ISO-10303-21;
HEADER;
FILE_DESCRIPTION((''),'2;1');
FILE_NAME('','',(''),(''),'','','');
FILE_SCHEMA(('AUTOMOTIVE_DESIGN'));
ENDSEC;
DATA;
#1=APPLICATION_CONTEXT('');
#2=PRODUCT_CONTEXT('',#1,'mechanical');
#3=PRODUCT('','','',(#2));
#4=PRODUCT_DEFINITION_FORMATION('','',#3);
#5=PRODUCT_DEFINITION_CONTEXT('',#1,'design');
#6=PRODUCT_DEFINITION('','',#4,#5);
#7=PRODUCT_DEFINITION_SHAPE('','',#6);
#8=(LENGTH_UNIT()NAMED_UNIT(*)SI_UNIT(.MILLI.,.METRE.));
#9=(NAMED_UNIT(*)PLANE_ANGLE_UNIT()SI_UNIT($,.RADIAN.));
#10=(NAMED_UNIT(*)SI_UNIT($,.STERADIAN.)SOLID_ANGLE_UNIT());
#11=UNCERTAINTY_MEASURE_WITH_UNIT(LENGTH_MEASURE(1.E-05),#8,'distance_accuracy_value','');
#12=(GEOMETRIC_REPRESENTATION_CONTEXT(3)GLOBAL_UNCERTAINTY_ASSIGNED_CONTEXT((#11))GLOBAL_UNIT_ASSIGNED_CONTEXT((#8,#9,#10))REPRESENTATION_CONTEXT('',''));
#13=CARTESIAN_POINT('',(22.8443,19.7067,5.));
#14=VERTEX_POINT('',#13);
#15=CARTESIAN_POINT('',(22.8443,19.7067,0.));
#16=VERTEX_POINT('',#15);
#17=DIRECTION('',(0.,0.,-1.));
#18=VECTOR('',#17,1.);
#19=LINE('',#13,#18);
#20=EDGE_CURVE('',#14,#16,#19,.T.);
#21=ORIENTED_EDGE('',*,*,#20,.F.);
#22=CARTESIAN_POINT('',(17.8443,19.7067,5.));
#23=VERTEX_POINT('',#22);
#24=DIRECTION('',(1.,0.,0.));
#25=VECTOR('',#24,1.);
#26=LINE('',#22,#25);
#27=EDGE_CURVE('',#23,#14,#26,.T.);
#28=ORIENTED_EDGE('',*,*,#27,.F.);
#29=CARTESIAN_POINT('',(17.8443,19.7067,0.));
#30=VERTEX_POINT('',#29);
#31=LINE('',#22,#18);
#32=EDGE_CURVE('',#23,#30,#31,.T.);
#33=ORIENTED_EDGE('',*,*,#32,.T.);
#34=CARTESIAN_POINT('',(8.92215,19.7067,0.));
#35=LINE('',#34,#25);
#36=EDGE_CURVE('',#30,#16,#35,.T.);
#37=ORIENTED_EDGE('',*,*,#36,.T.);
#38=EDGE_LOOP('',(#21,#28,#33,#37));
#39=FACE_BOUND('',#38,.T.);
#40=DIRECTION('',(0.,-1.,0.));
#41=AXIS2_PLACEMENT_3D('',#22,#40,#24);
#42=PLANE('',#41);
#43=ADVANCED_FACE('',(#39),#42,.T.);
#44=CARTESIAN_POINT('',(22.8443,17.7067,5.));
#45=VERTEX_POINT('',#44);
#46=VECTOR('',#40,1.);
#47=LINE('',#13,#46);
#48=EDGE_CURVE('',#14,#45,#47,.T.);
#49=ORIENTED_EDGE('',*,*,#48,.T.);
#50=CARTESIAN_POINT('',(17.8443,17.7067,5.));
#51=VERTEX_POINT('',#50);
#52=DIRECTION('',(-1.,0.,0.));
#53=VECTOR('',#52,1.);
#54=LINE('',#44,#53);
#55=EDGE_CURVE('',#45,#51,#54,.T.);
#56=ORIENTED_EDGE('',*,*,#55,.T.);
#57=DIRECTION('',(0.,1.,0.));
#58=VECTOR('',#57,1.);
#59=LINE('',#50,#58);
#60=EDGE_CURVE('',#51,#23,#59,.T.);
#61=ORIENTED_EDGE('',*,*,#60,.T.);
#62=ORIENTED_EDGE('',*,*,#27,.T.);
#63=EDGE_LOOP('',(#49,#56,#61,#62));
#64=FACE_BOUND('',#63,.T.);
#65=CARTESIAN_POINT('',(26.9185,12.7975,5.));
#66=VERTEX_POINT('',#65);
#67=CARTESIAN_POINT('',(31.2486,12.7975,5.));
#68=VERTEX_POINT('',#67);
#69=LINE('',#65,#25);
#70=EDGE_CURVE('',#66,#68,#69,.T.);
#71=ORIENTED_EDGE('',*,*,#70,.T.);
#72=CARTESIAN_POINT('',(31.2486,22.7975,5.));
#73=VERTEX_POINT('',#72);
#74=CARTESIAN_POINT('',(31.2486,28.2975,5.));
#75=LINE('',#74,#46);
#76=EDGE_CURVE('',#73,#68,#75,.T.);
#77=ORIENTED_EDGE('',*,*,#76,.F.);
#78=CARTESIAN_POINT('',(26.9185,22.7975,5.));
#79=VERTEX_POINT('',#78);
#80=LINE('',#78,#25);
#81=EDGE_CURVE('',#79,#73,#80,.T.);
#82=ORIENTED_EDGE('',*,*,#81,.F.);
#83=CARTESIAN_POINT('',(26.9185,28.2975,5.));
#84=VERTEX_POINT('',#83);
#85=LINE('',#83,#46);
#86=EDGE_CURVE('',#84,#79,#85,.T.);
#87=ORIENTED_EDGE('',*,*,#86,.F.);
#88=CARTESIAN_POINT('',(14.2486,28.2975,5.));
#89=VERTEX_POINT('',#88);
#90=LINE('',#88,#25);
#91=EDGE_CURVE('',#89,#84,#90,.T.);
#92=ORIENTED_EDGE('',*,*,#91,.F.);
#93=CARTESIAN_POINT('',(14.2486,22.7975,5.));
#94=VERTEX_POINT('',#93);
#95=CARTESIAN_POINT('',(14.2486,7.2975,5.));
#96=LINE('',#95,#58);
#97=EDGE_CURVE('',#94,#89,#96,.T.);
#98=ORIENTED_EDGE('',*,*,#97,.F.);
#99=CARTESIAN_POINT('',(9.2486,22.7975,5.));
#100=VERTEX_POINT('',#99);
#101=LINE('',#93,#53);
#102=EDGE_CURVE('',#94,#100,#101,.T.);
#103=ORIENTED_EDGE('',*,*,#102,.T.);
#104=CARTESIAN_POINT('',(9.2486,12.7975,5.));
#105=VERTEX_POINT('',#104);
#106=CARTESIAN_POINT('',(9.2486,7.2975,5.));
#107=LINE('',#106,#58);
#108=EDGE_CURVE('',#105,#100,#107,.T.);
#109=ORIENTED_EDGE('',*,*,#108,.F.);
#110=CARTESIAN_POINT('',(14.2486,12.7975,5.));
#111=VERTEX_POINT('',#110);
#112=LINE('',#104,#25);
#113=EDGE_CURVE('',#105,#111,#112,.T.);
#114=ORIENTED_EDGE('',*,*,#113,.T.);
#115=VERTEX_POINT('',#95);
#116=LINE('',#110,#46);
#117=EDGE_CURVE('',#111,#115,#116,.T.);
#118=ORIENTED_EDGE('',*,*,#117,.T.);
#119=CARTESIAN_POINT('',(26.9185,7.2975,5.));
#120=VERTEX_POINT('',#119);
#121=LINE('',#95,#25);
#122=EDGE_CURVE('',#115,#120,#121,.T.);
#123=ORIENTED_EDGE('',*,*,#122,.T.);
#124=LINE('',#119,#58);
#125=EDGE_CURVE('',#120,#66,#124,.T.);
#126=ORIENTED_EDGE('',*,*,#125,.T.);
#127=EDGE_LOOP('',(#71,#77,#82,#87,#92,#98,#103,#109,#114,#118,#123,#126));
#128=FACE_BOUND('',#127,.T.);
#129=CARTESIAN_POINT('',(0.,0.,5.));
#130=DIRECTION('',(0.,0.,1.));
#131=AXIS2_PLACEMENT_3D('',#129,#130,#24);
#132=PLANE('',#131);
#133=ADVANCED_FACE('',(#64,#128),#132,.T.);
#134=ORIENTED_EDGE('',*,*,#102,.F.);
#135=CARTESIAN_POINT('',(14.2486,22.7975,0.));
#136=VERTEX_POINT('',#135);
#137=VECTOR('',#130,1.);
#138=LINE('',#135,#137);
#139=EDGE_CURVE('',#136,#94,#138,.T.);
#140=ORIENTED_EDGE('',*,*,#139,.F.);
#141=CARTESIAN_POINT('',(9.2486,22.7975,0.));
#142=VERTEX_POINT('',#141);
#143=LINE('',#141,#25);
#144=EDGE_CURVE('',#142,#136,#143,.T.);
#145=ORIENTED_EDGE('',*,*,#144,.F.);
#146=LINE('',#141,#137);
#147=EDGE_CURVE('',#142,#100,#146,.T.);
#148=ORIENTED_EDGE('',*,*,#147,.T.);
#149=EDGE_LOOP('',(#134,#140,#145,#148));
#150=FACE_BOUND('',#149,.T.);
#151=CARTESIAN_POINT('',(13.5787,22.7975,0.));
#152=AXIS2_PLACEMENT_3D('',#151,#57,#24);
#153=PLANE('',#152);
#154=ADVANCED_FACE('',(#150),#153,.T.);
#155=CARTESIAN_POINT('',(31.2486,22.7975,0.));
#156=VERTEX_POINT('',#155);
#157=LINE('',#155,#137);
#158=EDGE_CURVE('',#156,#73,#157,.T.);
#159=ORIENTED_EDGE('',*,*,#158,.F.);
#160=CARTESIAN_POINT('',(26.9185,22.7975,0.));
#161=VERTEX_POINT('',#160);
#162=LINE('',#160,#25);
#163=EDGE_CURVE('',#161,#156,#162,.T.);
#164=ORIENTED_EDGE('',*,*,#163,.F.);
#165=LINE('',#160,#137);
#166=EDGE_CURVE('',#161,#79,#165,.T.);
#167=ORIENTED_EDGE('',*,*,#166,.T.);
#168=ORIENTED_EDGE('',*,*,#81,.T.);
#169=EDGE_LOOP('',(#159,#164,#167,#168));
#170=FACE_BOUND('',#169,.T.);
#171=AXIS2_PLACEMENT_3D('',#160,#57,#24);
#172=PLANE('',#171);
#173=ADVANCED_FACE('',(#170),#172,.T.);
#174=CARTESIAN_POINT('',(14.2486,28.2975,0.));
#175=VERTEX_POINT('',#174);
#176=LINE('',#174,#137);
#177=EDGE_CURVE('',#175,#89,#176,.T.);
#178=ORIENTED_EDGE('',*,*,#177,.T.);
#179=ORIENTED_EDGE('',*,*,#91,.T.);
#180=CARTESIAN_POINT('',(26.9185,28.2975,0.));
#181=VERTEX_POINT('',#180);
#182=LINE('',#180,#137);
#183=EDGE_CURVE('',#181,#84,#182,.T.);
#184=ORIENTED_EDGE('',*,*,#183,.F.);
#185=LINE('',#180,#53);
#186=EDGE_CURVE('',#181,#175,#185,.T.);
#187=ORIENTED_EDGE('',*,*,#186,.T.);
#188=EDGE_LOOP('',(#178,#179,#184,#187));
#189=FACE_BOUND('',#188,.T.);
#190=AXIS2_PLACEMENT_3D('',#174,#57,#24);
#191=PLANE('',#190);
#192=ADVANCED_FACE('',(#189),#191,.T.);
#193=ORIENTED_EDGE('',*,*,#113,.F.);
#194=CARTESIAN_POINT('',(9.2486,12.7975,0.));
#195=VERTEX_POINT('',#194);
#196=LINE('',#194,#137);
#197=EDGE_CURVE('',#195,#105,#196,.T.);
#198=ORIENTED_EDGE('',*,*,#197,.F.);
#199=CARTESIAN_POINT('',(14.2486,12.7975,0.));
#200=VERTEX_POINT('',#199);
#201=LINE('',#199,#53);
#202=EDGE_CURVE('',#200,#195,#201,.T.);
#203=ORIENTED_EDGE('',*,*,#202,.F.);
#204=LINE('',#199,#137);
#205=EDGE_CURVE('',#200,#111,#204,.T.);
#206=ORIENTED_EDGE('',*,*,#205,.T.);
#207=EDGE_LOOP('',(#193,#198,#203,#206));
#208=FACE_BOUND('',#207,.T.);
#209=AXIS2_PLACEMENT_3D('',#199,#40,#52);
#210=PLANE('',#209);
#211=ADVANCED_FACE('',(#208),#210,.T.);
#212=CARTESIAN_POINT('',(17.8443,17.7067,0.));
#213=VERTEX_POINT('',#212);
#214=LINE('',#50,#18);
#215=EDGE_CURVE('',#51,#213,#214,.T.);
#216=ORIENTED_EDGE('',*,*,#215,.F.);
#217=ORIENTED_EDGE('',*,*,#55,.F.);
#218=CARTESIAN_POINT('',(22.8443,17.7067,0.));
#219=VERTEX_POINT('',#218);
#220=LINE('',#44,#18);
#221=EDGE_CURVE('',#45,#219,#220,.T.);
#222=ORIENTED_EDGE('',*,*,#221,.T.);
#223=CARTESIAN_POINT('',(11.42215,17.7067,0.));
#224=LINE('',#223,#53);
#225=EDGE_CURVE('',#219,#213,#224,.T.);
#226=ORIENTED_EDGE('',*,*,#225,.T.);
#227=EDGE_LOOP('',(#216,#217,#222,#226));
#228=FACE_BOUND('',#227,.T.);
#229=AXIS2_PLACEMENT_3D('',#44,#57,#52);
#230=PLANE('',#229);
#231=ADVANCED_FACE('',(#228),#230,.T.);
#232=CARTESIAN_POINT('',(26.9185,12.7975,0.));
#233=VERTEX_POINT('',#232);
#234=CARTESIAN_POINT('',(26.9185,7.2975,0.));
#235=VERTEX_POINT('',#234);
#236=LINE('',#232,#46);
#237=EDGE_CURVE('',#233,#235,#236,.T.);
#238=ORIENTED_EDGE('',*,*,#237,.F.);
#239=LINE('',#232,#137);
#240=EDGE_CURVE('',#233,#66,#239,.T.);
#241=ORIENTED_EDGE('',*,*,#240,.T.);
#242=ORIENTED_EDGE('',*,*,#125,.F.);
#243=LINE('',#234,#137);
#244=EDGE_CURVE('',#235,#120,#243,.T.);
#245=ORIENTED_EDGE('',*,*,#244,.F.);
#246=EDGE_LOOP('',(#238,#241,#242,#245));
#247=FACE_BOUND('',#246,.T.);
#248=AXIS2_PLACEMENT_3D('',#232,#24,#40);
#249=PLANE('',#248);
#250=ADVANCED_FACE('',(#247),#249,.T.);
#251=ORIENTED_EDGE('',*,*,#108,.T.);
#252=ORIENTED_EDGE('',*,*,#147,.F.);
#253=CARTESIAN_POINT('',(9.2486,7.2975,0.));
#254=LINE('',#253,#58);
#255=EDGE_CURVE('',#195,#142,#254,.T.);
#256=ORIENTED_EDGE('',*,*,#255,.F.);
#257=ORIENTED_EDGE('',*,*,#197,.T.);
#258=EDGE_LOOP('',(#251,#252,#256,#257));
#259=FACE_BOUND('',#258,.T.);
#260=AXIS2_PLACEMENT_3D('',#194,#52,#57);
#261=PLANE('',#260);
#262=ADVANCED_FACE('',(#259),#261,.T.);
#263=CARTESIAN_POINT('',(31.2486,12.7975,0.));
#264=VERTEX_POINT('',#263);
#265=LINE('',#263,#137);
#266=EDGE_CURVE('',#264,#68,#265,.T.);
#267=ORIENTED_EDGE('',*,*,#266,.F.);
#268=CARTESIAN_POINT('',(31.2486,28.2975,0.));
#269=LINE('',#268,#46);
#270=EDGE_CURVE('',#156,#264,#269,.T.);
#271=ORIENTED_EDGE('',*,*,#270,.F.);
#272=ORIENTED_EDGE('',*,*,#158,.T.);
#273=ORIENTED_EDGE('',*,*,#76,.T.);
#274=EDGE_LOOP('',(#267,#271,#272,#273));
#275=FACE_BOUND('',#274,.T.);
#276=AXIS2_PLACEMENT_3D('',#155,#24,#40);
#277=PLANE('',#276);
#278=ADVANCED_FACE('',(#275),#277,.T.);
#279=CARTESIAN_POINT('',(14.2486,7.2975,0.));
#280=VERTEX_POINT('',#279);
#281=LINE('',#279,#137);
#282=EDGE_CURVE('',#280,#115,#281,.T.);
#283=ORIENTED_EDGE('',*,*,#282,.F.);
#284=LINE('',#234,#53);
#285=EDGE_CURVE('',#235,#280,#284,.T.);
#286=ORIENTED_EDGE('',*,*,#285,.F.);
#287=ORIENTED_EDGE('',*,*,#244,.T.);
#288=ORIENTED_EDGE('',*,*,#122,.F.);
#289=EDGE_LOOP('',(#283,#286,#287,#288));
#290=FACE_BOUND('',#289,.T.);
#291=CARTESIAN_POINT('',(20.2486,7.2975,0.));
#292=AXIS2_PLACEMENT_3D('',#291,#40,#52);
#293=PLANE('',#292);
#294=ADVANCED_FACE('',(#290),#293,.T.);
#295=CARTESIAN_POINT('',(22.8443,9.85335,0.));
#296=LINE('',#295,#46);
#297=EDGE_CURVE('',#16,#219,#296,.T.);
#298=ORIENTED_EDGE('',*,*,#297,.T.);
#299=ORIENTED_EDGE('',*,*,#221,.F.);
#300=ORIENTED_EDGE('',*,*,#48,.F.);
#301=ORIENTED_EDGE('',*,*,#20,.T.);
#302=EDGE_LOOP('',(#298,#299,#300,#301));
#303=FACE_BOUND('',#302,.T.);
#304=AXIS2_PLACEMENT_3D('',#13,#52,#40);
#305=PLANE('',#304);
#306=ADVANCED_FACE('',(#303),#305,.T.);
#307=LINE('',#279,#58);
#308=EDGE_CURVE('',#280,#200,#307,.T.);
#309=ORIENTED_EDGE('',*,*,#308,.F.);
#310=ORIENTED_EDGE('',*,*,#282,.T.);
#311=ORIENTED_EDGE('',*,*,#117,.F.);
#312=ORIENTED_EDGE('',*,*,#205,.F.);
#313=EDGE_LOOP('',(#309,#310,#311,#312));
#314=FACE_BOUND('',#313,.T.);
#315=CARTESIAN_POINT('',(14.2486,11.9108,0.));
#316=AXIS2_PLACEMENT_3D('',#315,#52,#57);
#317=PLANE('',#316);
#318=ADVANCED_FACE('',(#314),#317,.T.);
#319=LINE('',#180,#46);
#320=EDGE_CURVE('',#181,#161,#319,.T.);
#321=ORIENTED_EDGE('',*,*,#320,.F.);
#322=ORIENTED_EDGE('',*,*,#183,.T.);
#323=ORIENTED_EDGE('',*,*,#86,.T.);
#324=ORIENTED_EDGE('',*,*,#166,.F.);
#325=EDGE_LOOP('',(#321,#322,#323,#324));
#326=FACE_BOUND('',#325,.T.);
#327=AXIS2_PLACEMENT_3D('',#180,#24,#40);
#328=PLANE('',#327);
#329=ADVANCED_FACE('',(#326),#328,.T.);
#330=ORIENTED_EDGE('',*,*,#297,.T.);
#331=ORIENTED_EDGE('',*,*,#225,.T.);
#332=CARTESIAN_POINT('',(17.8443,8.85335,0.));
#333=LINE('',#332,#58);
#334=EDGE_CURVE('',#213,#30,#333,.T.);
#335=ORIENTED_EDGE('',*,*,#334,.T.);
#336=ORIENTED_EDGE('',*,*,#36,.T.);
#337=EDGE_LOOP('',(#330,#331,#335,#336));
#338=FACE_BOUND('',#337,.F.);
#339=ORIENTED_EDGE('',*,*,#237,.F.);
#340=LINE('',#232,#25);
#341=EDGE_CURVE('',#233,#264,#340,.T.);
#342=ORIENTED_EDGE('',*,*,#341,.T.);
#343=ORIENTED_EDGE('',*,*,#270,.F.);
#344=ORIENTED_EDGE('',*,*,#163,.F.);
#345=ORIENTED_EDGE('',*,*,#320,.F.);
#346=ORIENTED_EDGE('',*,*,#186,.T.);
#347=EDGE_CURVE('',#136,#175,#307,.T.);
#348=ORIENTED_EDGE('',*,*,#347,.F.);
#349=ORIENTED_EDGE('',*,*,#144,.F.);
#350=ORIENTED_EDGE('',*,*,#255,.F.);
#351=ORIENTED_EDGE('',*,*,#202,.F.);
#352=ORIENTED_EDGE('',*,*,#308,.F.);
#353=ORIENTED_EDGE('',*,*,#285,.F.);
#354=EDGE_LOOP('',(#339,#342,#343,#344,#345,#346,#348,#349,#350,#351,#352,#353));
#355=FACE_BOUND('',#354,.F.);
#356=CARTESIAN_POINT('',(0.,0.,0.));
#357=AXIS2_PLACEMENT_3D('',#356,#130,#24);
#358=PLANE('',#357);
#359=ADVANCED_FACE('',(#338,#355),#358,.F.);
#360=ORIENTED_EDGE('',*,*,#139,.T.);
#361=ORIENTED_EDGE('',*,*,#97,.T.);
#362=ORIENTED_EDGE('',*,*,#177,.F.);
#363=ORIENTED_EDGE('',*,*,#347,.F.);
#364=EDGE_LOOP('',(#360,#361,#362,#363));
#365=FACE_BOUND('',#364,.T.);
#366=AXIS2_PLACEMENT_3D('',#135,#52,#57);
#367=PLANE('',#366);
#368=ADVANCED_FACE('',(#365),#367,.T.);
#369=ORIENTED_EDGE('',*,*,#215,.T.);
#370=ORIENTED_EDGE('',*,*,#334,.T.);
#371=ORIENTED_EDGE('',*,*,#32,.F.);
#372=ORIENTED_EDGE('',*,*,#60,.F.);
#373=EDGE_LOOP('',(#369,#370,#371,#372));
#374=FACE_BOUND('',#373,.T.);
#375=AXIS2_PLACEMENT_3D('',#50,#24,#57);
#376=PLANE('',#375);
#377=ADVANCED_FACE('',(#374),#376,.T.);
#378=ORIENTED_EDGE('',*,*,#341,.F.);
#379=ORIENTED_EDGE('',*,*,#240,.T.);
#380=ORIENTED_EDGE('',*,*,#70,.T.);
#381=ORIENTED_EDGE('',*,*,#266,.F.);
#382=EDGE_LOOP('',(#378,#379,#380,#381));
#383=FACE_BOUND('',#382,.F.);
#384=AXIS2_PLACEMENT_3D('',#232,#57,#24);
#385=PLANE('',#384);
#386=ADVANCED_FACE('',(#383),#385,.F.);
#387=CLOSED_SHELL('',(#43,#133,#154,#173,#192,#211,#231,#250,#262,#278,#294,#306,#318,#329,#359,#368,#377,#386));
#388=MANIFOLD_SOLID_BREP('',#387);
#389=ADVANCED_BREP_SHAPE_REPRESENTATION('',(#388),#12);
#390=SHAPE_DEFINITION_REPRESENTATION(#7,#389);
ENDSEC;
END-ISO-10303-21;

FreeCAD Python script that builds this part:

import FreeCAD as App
import Part
import Sketcher
from FreeCAD import Vector


def add_polygon(sketch, points):
    """Adds a closed chain of lines whose ends are joined by coincident constraints."""
    first, n = sketch.GeometryCount, len(points)
    for a, b in zip(points, points[1:] + points[:1]):
        sketch.addGeometry(Part.LineSegment(App.Vector(*a, 0), App.Vector(*b, 0)), False)
    for i in range(n):
        sketch.addConstraint(Sketcher.Constraint("Coincident", first + i, 2, first + (i + 1) % n, 1))

doc = App.newDocument("Part")
params = doc.addObject("Spreadsheet::Sheet", "Params")
for row, (alias, value) in enumerate([
    ("sketch1_width", "5 mm"),
    ("sketch1_height", "10 mm"),
    ("sketch1_height2", "5.5 mm"),
    ("sketch1_width2", "12.67 mm"),
    ("pad1_length", "5 mm"),
    ("sketch2_width", "5 mm"),
    ("sketch2_height", "2 mm"),
    ("pocket1_length", "10 mm"),
], start=1):
    params.set(f"A{row}", alias)
    params.set(f"B{row}", "=" + value)
    params.setAlias(f"B{row}", alias)

body = doc.addObject("PartDesign::Body", "Body")

# Sketch on XY plane
sketch1 = body.newObject("Sketcher::SketchObject", "Sketch")
sketch1.AttachmentSupport = (doc.getObject("XY_Plane"), [""])
sketch1.MapMode = "FlatFace"
add_polygon(sketch1, [(14.2, 28.3), (14.2, 22.8), (9.2, 22.8), (9.2, 12.8), (14.2, 12.8), (14.2, 7.3), (26.9, 7.3), (26.9, 12.8), (31.2, 12.8), (31.2, 22.8), (26.9, 22.8), (26.9, 28.3)])  # lines 0-11
sketch1.addConstraint([
    Sketcher.Constraint("Vertical", 0),
    Sketcher.Constraint("Horizontal", 1),
    Sketcher.Constraint("Vertical", 2),
    Sketcher.Constraint("Horizontal", 3),
    Sketcher.Constraint("Vertical", 4),
    Sketcher.Constraint("Horizontal", 5),
    Sketcher.Constraint("Vertical", 6),
    Sketcher.Constraint("Horizontal", 7),
    Sketcher.Constraint("Vertical", 8),
    Sketcher.Constraint("Horizontal", 9),
    Sketcher.Constraint("Vertical", 10),
    Sketcher.Constraint("Horizontal", 11),
    Sketcher.Constraint("Horizontal", 3, 2, 6, 2),
    Sketcher.Constraint("Horizontal", 1, 2, 8, 2),
    Sketcher.Constraint("Vertical", 0, 2, 3, 2),
    Sketcher.Constraint("Vertical", 6, 2, 9, 2),
    Sketcher.Constraint("Equal", 0, 4),
    Sketcher.Constraint("DistanceX", 1, 2, 1, 1, 5.0),
    Sketcher.Constraint("DistanceY", 2, 2, 2, 1, 10.0),
    Sketcher.Constraint("DistanceY", 0, 2, 0, 1, 5.5),
    Sketcher.Constraint("DistanceX", 3, 2, 7, 2, 17.0),
    Sketcher.Constraint("DistanceX", 5, 1, 5, 2, 12.67),
    Sketcher.Constraint("DistanceX", -1, 1, 0, 2, 14.2486),
    Sketcher.Constraint("DistanceY", -1, 1, 0, 2, 22.7975),
])
sketch1.setExpression("Constraints[29]", "Params.sketch1_width")
sketch1.setExpression("Constraints[30]", "Params.sketch1_height")
sketch1.setExpression("Constraints[31]", "Params.sketch1_height2")
sketch1.setExpression("Constraints[33]", "Params.sketch1_width2")
pad1 = body.newObject("PartDesign::Pad", "Pad")
pad1.Profile = sketch1
pad1.setExpression("Length", "Params.pad1_length")

# Sketch on XY plane
sketch2 = body.newObject("Sketcher::SketchObject", "Sketch001")
sketch2.AttachmentSupport = (doc.getObject("XY_Plane"), [""])
sketch2.MapMode = "FlatFace"
sketch2.AttachmentOffset = App.Placement(Vector(0, 0, 5), App.Rotation())
add_polygon(sketch2, [(22.8, 19.7), (17.8, 19.7), (17.8, 17.7), (22.8, 17.7)])  # lines 0-3
sketch2.addConstraint([
    Sketcher.Constraint("Horizontal", 0),
    Sketcher.Constraint("Vertical", 1),
    Sketcher.Constraint("Horizontal", 2),
    Sketcher.Constraint("Vertical", 3),
    Sketcher.Constraint("DistanceX", 0, 2, 0, 1, 5.0),
    Sketcher.Constraint("DistanceY", 1, 2, 1, 1, 2.0),
    Sketcher.Constraint("DistanceX", -1, 1, 0, 2, 17.8443),
    Sketcher.Constraint("DistanceY", -1, 1, 0, 2, 19.7067),
])
sketch2.setExpression("Constraints[8]", "Params.sketch2_width")
sketch2.setExpression("Constraints[9]", "Params.sketch2_height")
pocket1 = body.newObject("PartDesign::Pocket", "Pocket")
pocket1.Profile = sketch2
pocket1.setExpression("Length", "Params.pocket1_length")

doc.recompute()
